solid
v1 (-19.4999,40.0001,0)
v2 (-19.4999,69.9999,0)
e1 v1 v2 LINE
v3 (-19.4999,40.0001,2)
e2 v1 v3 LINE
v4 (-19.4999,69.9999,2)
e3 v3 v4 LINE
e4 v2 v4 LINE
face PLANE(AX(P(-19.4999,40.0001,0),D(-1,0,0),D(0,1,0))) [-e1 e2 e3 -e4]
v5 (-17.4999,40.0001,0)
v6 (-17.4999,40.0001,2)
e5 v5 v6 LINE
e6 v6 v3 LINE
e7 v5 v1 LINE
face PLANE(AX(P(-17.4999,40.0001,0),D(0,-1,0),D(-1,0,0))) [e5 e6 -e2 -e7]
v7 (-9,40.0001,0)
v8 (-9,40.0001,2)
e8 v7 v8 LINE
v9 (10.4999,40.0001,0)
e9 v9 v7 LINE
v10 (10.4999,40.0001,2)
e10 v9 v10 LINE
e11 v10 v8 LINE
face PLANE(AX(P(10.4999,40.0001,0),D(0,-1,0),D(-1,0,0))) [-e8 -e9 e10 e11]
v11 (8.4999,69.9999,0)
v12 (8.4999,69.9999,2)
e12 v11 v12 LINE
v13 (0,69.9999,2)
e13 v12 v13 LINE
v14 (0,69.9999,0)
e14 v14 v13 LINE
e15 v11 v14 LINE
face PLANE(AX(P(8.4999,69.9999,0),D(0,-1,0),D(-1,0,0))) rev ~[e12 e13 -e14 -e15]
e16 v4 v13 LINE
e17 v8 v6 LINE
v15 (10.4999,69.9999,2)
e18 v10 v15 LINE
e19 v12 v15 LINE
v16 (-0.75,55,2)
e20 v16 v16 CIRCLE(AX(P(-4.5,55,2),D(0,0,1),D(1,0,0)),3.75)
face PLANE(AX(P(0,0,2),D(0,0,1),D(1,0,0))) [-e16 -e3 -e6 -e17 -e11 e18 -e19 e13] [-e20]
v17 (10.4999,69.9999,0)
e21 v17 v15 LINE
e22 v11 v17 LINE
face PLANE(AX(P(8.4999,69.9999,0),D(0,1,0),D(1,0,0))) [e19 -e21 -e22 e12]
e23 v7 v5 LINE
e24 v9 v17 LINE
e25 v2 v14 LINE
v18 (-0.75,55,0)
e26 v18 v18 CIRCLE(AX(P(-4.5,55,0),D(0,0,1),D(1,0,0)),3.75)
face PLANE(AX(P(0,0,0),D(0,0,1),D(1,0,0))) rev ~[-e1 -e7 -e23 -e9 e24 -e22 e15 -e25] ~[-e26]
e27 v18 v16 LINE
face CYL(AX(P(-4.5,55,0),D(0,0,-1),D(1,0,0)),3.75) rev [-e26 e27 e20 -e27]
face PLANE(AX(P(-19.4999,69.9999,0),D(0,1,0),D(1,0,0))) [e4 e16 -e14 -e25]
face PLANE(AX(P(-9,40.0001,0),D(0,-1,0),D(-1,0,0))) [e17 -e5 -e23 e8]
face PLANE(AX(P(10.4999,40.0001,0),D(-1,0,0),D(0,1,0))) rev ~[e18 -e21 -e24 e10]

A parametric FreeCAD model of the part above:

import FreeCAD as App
import Part
import Sketcher
from FreeCAD import Vector
Q = App.Units.Quantity


def add_polygon(sketch, points):
    """Adds a closed chain of lines whose ends are joined by coincident constraints."""
    first, n = sketch.GeometryCount, len(points)
    for a, b in zip(points, points[1:] + points[:1]):
        sketch.addGeometry(Part.LineSegment(App.Vector(*a, 0), App.Vector(*b, 0)), False)
    for i in range(n):
        sketch.addConstraint(Sketcher.Constraint("Coincident", first + i, 2, first + (i + 1) % n, 1))

doc = App.newDocument("Part")
body = doc.addObject("PartDesign::Body", "Body")

# Sketch on XY plane
sketch1 = body.newObject("Sketcher::SketchObject", "Sketch")
sketch1.AttachmentSupport = (doc.getObject("XY_Plane"), [""])
sketch1.MapMode = "FlatFace"
add_polygon(sketch1, [(10.5, 70), (-19.5, 70), (-19.5, 40), (10.5, 40)])  # lines 0-3
sketch1.addGeometry(Part.Circle(Vector(-4.5, 55, 0), Vector(0, 0, 1), 3.8), False)  # 4
sketch1.addConstraint([
    Sketcher.Constraint("Horizontal", 0),
    Sketcher.Constraint("Vertical", 1),
    Sketcher.Constraint("Horizontal", 2),
    Sketcher.Constraint("Vertical", 3),
    Sketcher.Constraint("Equal", 2, 1),
    Sketcher.Constraint("Diameter", 4, Q("7.5 mm")),
    Sketcher.Constraint("DistanceX", 0, 2, 4, 3, Q("15 mm")),
    Sketcher.Constraint("DistanceY", 4, 3, 0, 2, Q("15 mm")),
    Sketcher.Constraint("DistanceY", 1, 2, 4, 3, Q("15 mm")),
    Sketcher.Constraint("DistanceY", -1, 1, 4, 3, Q("55 mm")),
    Sketcher.Constraint("DistanceX", 4, 3, -1, 1, Q("4.5 mm")),
])
pad1 = body.newObject("PartDesign::Pad", "Pad")
pad1.Profile = sketch1
pad1.Length = 2

doc.recompute()
